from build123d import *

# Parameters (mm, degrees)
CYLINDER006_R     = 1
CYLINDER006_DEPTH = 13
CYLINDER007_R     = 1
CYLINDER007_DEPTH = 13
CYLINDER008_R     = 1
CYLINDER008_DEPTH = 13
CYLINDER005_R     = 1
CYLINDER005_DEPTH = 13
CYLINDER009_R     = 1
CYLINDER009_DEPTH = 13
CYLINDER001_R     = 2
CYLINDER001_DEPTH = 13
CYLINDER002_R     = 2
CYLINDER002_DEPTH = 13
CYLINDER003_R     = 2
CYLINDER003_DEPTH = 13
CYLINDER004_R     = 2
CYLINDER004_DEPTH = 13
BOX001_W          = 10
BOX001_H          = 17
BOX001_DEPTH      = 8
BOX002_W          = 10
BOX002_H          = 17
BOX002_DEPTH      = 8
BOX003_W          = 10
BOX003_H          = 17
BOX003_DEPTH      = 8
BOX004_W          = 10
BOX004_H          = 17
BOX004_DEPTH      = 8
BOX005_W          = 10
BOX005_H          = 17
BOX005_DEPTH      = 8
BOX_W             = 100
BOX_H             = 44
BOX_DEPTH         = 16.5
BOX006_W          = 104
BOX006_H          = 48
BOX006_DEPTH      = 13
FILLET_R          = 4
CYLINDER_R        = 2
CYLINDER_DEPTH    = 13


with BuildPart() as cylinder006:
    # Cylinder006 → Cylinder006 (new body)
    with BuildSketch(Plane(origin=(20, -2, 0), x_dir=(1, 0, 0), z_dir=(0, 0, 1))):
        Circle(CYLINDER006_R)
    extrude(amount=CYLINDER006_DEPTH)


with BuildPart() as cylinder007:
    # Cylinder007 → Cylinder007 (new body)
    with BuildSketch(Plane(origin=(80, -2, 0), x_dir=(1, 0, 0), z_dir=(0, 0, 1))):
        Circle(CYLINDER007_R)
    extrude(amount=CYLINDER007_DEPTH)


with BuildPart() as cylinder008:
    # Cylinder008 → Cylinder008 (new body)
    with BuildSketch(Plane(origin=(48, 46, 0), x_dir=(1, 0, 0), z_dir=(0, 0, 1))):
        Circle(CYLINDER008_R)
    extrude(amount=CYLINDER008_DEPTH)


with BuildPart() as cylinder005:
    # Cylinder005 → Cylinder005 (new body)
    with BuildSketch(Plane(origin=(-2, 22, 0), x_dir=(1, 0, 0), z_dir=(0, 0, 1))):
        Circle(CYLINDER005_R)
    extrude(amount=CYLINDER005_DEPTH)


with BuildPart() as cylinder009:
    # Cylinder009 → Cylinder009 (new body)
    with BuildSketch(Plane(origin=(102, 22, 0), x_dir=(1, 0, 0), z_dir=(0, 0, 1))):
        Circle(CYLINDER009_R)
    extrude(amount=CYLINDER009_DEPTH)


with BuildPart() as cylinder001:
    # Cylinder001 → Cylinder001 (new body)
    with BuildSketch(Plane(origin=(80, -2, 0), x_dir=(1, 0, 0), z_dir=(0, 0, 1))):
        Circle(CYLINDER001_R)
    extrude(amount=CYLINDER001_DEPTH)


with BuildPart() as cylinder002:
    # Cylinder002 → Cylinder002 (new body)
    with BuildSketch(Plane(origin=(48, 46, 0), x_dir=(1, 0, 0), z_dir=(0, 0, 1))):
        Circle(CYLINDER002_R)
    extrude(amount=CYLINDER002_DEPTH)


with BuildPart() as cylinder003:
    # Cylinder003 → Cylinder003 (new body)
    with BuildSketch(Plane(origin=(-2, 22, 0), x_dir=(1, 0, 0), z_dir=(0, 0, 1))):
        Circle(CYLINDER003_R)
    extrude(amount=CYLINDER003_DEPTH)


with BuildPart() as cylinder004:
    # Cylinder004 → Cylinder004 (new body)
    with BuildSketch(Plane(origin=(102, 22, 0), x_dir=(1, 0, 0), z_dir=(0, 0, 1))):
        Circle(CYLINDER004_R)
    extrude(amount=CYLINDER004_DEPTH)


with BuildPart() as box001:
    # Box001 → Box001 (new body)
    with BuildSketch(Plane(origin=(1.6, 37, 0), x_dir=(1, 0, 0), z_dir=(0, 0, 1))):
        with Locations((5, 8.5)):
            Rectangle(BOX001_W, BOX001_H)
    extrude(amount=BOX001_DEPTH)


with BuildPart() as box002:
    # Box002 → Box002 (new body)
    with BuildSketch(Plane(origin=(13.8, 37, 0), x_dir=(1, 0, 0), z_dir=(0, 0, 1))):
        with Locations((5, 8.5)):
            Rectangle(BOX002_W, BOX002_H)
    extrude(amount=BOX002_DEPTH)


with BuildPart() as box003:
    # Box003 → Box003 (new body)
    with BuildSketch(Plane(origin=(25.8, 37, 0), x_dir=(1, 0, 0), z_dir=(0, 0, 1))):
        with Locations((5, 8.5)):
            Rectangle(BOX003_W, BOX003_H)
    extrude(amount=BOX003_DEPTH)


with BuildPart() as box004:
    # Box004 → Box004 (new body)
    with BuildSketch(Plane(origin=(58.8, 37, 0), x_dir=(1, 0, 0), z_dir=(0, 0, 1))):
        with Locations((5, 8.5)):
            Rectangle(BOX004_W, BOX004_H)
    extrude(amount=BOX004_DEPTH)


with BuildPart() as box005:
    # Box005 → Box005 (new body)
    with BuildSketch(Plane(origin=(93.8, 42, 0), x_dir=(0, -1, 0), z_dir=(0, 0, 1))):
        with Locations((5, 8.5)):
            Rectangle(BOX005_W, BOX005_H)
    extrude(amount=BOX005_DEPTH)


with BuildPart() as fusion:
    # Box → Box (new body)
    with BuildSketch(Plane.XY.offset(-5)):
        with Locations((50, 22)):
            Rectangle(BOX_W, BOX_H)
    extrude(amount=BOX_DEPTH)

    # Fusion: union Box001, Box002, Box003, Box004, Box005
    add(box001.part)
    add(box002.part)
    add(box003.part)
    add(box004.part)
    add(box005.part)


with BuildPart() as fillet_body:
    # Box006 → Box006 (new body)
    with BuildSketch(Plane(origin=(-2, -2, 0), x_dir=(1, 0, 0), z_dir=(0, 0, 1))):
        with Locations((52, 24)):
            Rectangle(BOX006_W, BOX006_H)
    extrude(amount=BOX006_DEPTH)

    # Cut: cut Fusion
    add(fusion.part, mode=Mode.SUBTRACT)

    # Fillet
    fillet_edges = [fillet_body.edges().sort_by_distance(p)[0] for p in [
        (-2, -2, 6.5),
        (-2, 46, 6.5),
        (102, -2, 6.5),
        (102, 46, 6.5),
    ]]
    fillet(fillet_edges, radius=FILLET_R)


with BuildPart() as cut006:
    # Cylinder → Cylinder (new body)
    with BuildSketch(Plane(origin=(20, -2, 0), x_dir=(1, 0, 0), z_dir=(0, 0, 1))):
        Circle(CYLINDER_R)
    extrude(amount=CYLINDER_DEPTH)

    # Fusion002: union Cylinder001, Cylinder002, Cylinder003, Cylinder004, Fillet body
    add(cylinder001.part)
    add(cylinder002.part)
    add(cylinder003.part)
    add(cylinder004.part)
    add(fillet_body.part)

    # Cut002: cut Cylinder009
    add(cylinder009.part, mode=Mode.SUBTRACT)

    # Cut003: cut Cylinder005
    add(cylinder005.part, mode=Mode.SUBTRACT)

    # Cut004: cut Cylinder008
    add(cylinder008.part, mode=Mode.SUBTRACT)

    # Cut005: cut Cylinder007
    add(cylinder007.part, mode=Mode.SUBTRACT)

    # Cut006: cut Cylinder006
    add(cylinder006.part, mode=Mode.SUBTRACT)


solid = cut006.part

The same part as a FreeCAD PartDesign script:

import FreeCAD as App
import Part
import Sketcher
Q = App.Units.Quantity


def edges_at(feature, points):
    """Names of the edges that pass closest to the given points."""
    edges = feature.Shape.Edges
    near = lambda p: min(range(len(edges)), key=lambda i: edges[i].distToShape(Part.Vertex(*p))[0])
    return sorted({f"Edge{near(p) + 1}" for p in points})

doc = App.newDocument("Part")
params = doc.addObject("Spreadsheet::Sheet", "Params")
for row, (alias, value) in enumerate([
    ("sketch1_diameter", "2 mm"),
    ("pad1_length", "13 mm"),
    ("sketch2_diameter", "2 mm"),
    ("pad2_length", "13 mm"),
    ("sketch3_diameter", "2 mm"),
    ("pad3_length", "13 mm"),
    ("sketch4_diameter", "2 mm"),
    ("pad4_length", "13 mm"),
    ("sketch5_diameter", "2 mm"),
    ("pad5_length", "13 mm"),
    ("sketch6_diameter", "4 mm"),
    ("pad6_length", "13 mm"),
    ("sketch7_diameter", "4 mm"),
    ("pad7_length", "13 mm"),
    ("sketch8_diameter", "4 mm"),
    ("pad8_length", "13 mm"),
    ("sketch9_diameter", "4 mm"),
    ("pad9_length", "13 mm"),
    ("sketch10_width", "10 mm"),
    ("sketch10_height", "17 mm"),
    ("pad10_length", "8 mm"),
    ("sketch11_width", "10 mm"),
    ("sketch11_height", "17 mm"),
    ("pad11_length", "8 mm"),
    ("sketch12_width", "10 mm"),
    ("sketch12_height", "17 mm"),
    ("pad12_length", "8 mm"),
    ("sketch13_width", "10 mm"),
    ("sketch13_height", "17 mm"),
    ("pad13_length", "8 mm"),
    ("sketch14_width", "17 mm"),
    ("sketch14_height", "10 mm"),
    ("pad14_length", "8 mm"),
    ("sketch15_width", "100 mm"),
    ("sketch15_height", "44 mm"),
    ("pad15_length", "16.5 mm"),
    ("sketch16_width", "104 mm"),
    ("sketch16_height", "48 mm"),
    ("pad16_length", "13 mm"),
    ("fillet_radius", "4 mm"),
    ("sketch17_diameter", "4 mm"),
    ("pad17_length", "13 mm"),
], start=1):
    params.set(f"A{row}", alias)
    params.set(f"B{row}", "=" + value)
    params.setAlias(f"B{row}", alias)

body = doc.addObject("PartDesign::Body", "Body")

# Sketch on XY plane
sketch1 = body.newObject("Sketcher::SketchObject", "Sketch")
sketch1.AttachmentSupport = (doc.getObject("XY_Plane"), [""])
sketch1.MapMode = "FlatFace"
sketch1.addGeometry(Part.Circle(App.Vector(20, -2, 0), App.Vector(0, 0, 1), 1), False)
sketch1.addConstraint(Sketcher.Constraint("Diameter", 0, Q("2 mm")))
sketch1.addConstraint(Sketcher.Constraint("DistanceX", -1, 1, 0, 3, Q("20 mm")))
sketch1.addConstraint(Sketcher.Constraint("DistanceY", 0, 3, -1, 1, Q("2 mm")))
sketch1.setExpression("Constraints[0]", "Params.sketch1_diameter")
pad1 = body.newObject("PartDesign::Pad", "Pad")
pad1.Profile = sketch1
pad1.setExpression("Length", "Params.pad1_length")
body2 = doc.addObject("PartDesign::Body", "Body001")

# Sketch on XY plane
sketch2 = body2.newObject("Sketcher::SketchObject", "Sketch001")
sketch2.AttachmentSupport = (doc.getObject("XY_Plane001"), [""])
sketch2.MapMode = "FlatFace"
sketch2.addGeometry(Part.Circle(App.Vector(80, -2, 0), App.Vector(0, 0, 1), 1), False)
sketch2.addConstraint(Sketcher.Constraint("Diameter", 0, Q("2 mm")))
sketch2.addConstraint(Sketcher.Constraint("DistanceX", -1, 1, 0, 3, Q("80 mm")))
sketch2.addConstraint(Sketcher.Constraint("DistanceY", 0, 3, -1, 1, Q("2 mm")))
sketch2.setExpression("Constraints[0]", "Params.sketch2_diameter")
pad2 = body2.newObject("PartDesign::Pad", "Pad001")
pad2.Profile = sketch2
pad2.setExpression("Length", "Params.pad2_length")
body3 = doc.addObject("PartDesign::Body", "Body002")

# Sketch on XY plane
sketch3 = body3.newObject("Sketcher::SketchObject", "Sketch002")
sketch3.AttachmentSupport = (doc.getObject("XY_Plane002"), [""])
sketch3.MapMode = "FlatFace"
sketch3.addGeometry(Part.Circle(App.Vector(48, 46, 0), App.Vector(0, 0, 1), 1), False)
sketch3.addConstraint(Sketcher.Constraint("Diameter", 0, Q("2 mm")))
sketch3.addConstraint(Sketcher.Constraint("DistanceX", -1, 1, 0, 3, Q("48 mm")))
sketch3.addConstraint(Sketcher.Constraint("DistanceY", -1, 1, 0, 3, Q("46 mm")))
sketch3.setExpression("Constraints[0]", "Params.sketch3_diameter")
pad3 = body3.newObject("PartDesign::Pad", "Pad002")
pad3.Profile = sketch3
pad3.setExpression("Length", "Params.pad3_length")
body4 = doc.addObject("PartDesign::Body", "Body003")

# Sketch on XY plane
sketch4 = body4.newObject("Sketcher::SketchObject", "Sketch003")
sketch4.AttachmentSupport = (doc.getObject("XY_Plane003"), [""])
sketch4.MapMode = "FlatFace"
sketch4.addGeometry(Part.Circle(App.Vector(-2, 22, 0), App.Vector(0, 0, 1), 1), False)
sketch4.addConstraint(Sketcher.Constraint("Diameter", 0, Q("2 mm")))
sketch4.addConstraint(Sketcher.Constraint("DistanceX", 0, 3, -1, 1, Q("2 mm")))
sketch4.addConstraint(Sketcher.Constraint("DistanceY", -1, 1, 0, 3, Q("22 mm")))
sketch4.setExpression("Constraints[0]", "Params.sketch4_diameter")
pad4 = body4.newObject("PartDesign::Pad", "Pad003")
pad4.Profile = sketch4
pad4.setExpression("Length", "Params.pad4_length")
body5 = doc.addObject("PartDesign::Body", "Body004")

# Sketch on XY plane
sketch5 = body5.newObject("Sketcher::SketchObject", "Sketch004")
sketch5.AttachmentSupport = (doc.getObject("XY_Plane004"), [""])
sketch5.MapMode = "FlatFace"
sketch5.addGeometry(Part.Circle(App.Vector(102, 22, 0), App.Vector(0, 0, 1), 1), False)
sketch5.addConstraint(Sketcher.Constraint("Diameter", 0, Q("2 mm")))
sketch5.addConstraint(Sketcher.Constraint("DistanceX", -1, 1, 0, 3, Q("102 mm")))
sketch5.addConstraint(Sketcher.Constraint("DistanceY", -1, 1, 0, 3, Q("22 mm")))
sketch5.setExpression("Constraints[0]", "Params.sketch5_diameter")
pad5 = body5.newObject("PartDesign::Pad", "Pad004")
pad5.Profile = sketch5
pad5.setExpression("Length", "Params.pad5_length")
body6 = doc.addObject("PartDesign::Body", "Body005")

# Sketch on XY plane
sketch6 = body6.newObject("Sketcher::SketchObject", "Sketch005")
sketch6.AttachmentSupport = (doc.getObject("XY_Plane005"), [""])
sketch6.MapMode = "FlatFace"
sketch6.addGeometry(Part.Circle(App.Vector(80, -2, 0), App.Vector(0, 0, 1), 2), False)
sketch6.addConstraint(Sketcher.Constraint("Diameter", 0, Q("4 mm")))
sketch6.addConstraint(Sketcher.Constraint("DistanceX", -1, 1, 0, 3, Q("80 mm")))
sketch6.addConstraint(Sketcher.Constraint("DistanceY", 0, 3, -1, 1, Q("2 mm")))
sketch6.setExpression("Constraints[0]", "Params.sketch6_diameter")
pad6 = body6.newObject("PartDesign::Pad", "Pad005")
pad6.Profile = sketch6
pad6.setExpression("Length", "Params.pad6_length")
body7 = doc.addObject("PartDesign::Body", "Body006")

# Sketch on XY plane
sketch7 = body7.newObject("Sketcher::SketchObject", "Sketch006")
sketch7.AttachmentSupport = (doc.getObject("XY_Plane006"), [""])
sketch7.MapMode = "FlatFace"
sketch7.addGeometry(Part.Circle(App.Vector(48, 46, 0), App.Vector(0, 0, 1), 2), False)
sketch7.addConstraint(Sketcher.Constraint("Diameter", 0, Q("4 mm")))
sketch7.addConstraint(Sketcher.Constraint("DistanceX", -1, 1, 0, 3, Q("48 mm")))
sketch7.addConstraint(Sketcher.Constraint("DistanceY", -1, 1, 0, 3, Q("46 mm")))
sketch7.setExpression("Constraints[0]", "Params.sketch7_diameter")
pad7 = body7.newObject("PartDesign::Pad", "Pad006")
pad7.Profile = sketch7
pad7.setExpression("Length", "Params.pad7_length")
body8 = doc.addObject("PartDesign::Body", "Body007")

# Sketch on XY plane
sketch8 = body8.newObject("Sketcher::SketchObject", "Sketch007")
sketch8.AttachmentSupport = (doc.getObject("XY_Plane007"), [""])
sketch8.MapMode = "FlatFace"
sketch8.addGeometry(Part.Circle(App.Vector(-2, 22, 0), App.Vector(0, 0, 1), 2), False)
sketch8.addConstraint(Sketcher.Constraint("Diameter", 0, Q("4 mm")))
sketch8.addConstraint(Sketcher.Constraint("DistanceX", 0, 3, -1, 1, Q("2 mm")))
sketch8.addConstraint(Sketcher.Constraint("DistanceY", -1, 1, 0, 3, Q("22 mm")))
sketch8.setExpression("Constraints[0]", "Params.sketch8_diameter")
pad8 = body8.newObject("PartDesign::Pad", "Pad007")
pad8.Profile = sketch8
pad8.setExpression("Length", "Params.pad8_length")
body9 = doc.addObject("PartDesign::Body", "Body008")

# Sketch on XY plane
sketch9 = body9.newObject("Sketcher::SketchObject", "Sketch008")
sketch9.AttachmentSupport = (doc.getObject("XY_Plane008"), [""])
sketch9.MapMode = "FlatFace"
sketch9.addGeometry(Part.Circle(App.Vector(102, 22, 0), App.Vector(0, 0, 1), 2), False)
sketch9.addConstraint(Sketcher.Constraint("Diameter", 0, Q("4 mm")))
sketch9.addConstraint(Sketcher.Constraint("DistanceX", -1, 1, 0, 3, Q("102 mm")))
sketch9.addConstraint(Sketcher.Constraint("DistanceY", -1, 1, 0, 3, Q("22 mm")))
sketch9.setExpression("Constraints[0]", "Params.sketch9_diameter")
pad9 = body9.newObject("PartDesign::Pad", "Pad008")
pad9.Profile = sketch9
pad9.setExpression("Length", "Params.pad9_length")
body10 = doc.addObject("PartDesign::Body", "Body009")

# Sketch on XY plane
sketch10 = body10.newObject("Sketcher::SketchObject", "Sketch009")
sketch10.AttachmentSupport = (doc.getObject("XY_Plane009"), [""])
sketch10.MapMode = "FlatFace"
sketch10.addGeometry(Part.LineSegment(App.Vector(2, 54, 0), App.Vector(2, 37, 0)), False)
sketch10.addGeometry(Part.LineSegment(App.Vector(2, 37, 0), App.Vector(12, 37, 0)), False)
sketch10.addGeometry(Part.LineSegment(App.Vector(12, 37, 0), App.Vector(12, 54, 0)), False)
sketch10.addGeometry(Part.LineSegment(App.Vector(12, 54, 0), App.Vector(2, 54, 0)), False)
sketch10.addConstraint(Sketcher.Constraint("Coincident", 0, 2, 1, 1))
sketch10.addConstraint(Sketcher.Constraint("Coincident", 1, 2, 2, 1))
sketch10.addConstraint(Sketcher.Constraint("Coincident", 2, 2, 3, 1))
sketch10.addConstraint(Sketcher.Constraint("Coincident", 3, 2, 0, 1))
sketch10.addConstraint(Sketcher.Constraint("Vertical", 0))
sketch10.addConstraint(Sketcher.Constraint("Horizontal", 1))
sketch10.addConstraint(Sketcher.Constraint("Vertical", 2))
sketch10.addConstraint(Sketcher.Constraint("Horizontal", 3))
sketch10.addConstraint(Sketcher.Constraint("DistanceX", 1, 1, 1, 2, Q("10 mm")))
sketch10.addConstraint(Sketcher.Constraint("DistanceY", 0, 2, 0, 1, Q("17 mm")))
sketch10.addConstraint(Sketcher.Constraint("DistanceY", -1, 1, 0, 2, Q("37 mm")))
sketch10.addConstraint(Sketcher.Constraint("DistanceX", -1, 1, 0, 2, Q("1.6 mm")))
sketch10.setExpression("Constraints[8]", "Params.sketch10_width")
sketch10.setExpression("Constraints[9]", "Params.sketch10_height")
pad10 = body10.newObject("PartDesign::Pad", "Pad009")
pad10.Profile = sketch10
pad10.setExpression("Length", "Params.pad10_length")
body11 = doc.addObject("PartDesign::Body", "Body010")

# Sketch on XY plane
sketch11 = body11.newObject("Sketcher::SketchObject", "Sketch010")
sketch11.AttachmentSupport = (doc.getObject("XY_Plane010"), [""])
sketch11.MapMode = "FlatFace"
sketch11.addGeometry(Part.LineSegment(App.Vector(14, 54, 0), App.Vector(14, 37, 0)), False)
sketch11.addGeometry(Part.LineSegment(App.Vector(14, 37, 0), App.Vector(24, 37, 0)), False)
sketch11.addGeometry(Part.LineSegment(App.Vector(24, 37, 0), App.Vector(24, 54, 0)), False)
sketch11.addGeometry(Part.LineSegment(App.Vector(24, 54, 0), App.Vector(14, 54, 0)), False)
sketch11.addConstraint(Sketcher.Constraint("Coincident", 0, 2, 1, 1))
sketch11.addConstraint(Sketcher.Constraint("Coincident", 1, 2, 2, 1))
sketch11.addConstraint(Sketcher.Constraint("Coincident", 2, 2, 3, 1))
sketch11.addConstraint(Sketcher.Constraint("Coincident", 3, 2, 0, 1))
sketch11.addConstraint(Sketcher.Constraint("Vertical", 0))
sketch11.addConstraint(Sketcher.Constraint("Horizontal", 1))
sketch11.addConstraint(Sketcher.Constraint("Vertical", 2))
sketch11.addConstraint(Sketcher.Constraint("Horizontal", 3))
sketch11.addConstraint(Sketcher.Constraint("DistanceX", 1, 1, 1, 2, Q("10 mm")))
sketch11.addConstraint(Sketcher.Constraint("DistanceY", 0, 2, 0, 1, Q("17 mm")))
sketch11.addConstraint(Sketcher.Constraint("DistanceY", -1, 1, 0, 2, Q("37 mm")))
sketch11.addConstraint(Sketcher.Constraint("DistanceX", -1, 1, 0, 2, Q("13.8 mm")))
sketch11.setExpression("Constraints[8]", "Params.sketch11_width")
sketch11.setExpression("Constraints[9]", "Params.sketch11_height")
pad11 = body11.newObject("PartDesign::Pad", "Pad010")
pad11.Profile = sketch11
pad11.setExpression("Length", "Params.pad11_length")
body12 = doc.addObject("PartDesign::Body", "Body011")

# Sketch on XY plane
sketch12 = body12.newObject("Sketcher::SketchObject", "Sketch011")
sketch12.AttachmentSupport = (doc.getObject("XY_Plane011"), [""])
sketch12.MapMode = "FlatFace"
sketch12.addGeometry(Part.LineSegment(App.Vector(26, 54, 0), App.Vector(26, 37, 0)), False)
sketch12.addGeometry(Part.LineSegment(App.Vector(26, 37, 0), App.Vector(36, 37, 0)), False)
sketch12.addGeometry(Part.LineSegment(App.Vector(36, 37, 0), App.Vector(36, 54, 0)), False)
sketch12.addGeometry(Part.LineSegment(App.Vector(36, 54, 0), App.Vector(26, 54, 0)), False)
sketch12.addConstraint(Sketcher.Constraint("Coincident", 0, 2, 1, 1))
sketch12.addConstraint(Sketcher.Constraint("Coincident", 1, 2, 2, 1))
sketch12.addConstraint(Sketcher.Constraint("Coincident", 2, 2, 3, 1))
sketch12.addConstraint(Sketcher.Constraint("Coincident", 3, 2, 0, 1))
sketch12.addConstraint(Sketcher.Constraint("Vertical", 0))
sketch12.addConstraint(Sketcher.Constraint("Horizontal", 1))
sketch12.addConstraint(Sketcher.Constraint("Vertical", 2))
sketch12.addConstraint(Sketcher.Constraint("Horizontal", 3))
sketch12.addConstraint(Sketcher.Constraint("DistanceX", 1, 1, 1, 2, Q("10 mm")))
sketch12.addConstraint(Sketcher.Constraint("DistanceY", 0, 2, 0, 1, Q("17 mm")))
sketch12.addConstraint(Sketcher.Constraint("DistanceY", -1, 1, 0, 2, Q("37 mm")))
sketch12.addConstraint(Sketcher.Constraint("DistanceX", -1, 1, 0, 2, Q("25.8 mm")))
sketch12.setExpression("Constraints[8]", "Params.sketch12_width")
sketch12.setExpression("Constraints[9]", "Params.sketch12_height")
pad12 = body12.newObject("PartDesign::Pad", "Pad011")
pad12.Profile = sketch12
pad12.setExpression("Length", "Params.pad12_length")
body13 = doc.addObject("PartDesign::Body", "Body012")

# Sketch on XY plane
sketch13 = body13.newObject("Sketcher::SketchObject", "Sketch012")
sketch13.AttachmentSupport = (doc.getObject("XY_Plane012"), [""])
sketch13.MapMode = "FlatFace"
sketch13.addGeometry(Part.LineSegment(App.Vector(59, 54, 0), App.Vector(59, 37, 0)), False)
sketch13.addGeometry(Part.LineSegment(App.Vector(59, 37, 0), App.Vector(69, 37, 0)), False)
sketch13.addGeometry(Part.LineSegment(App.Vector(69, 37, 0), App.Vector(69, 54, 0)), False)
sketch13.addGeometry(Part.LineSegment(App.Vector(69, 54, 0), App.Vector(59, 54, 0)), False)
sketch13.addConstraint(Sketcher.Constraint("Coincident", 0, 2, 1, 1))
sketch13.addConstraint(Sketcher.Constraint("Coincident", 1, 2, 2, 1))
sketch13.addConstraint(Sketcher.Constraint("Coincident", 2, 2, 3, 1))
sketch13.addConstraint(Sketcher.Constraint("Coincident", 3, 2, 0, 1))
sketch13.addConstraint(Sketcher.Constraint("Vertical", 0))
sketch13.addConstraint(Sketcher.Constraint("Horizontal", 1))
sketch13.addConstraint(Sketcher.Constraint("Vertical", 2))
sketch13.addConstraint(Sketcher.Constraint("Horizontal", 3))
sketch13.addConstraint(Sketcher.Constraint("DistanceX", 1, 1, 1, 2, Q("10 mm")))
sketch13.addConstraint(Sketcher.Constraint("DistanceY", 0, 2, 0, 1, Q("17 mm")))
sketch13.addConstraint(Sketcher.Constraint("DistanceY", -1, 1, 0, 2, Q("37 mm")))
sketch13.addConstraint(Sketcher.Constraint("DistanceX", -1, 1, 0, 2, Q("58.8 mm")))
sketch13.setExpression("Constraints[8]", "Params.sketch13_width")
sketch13.setExpression("Constraints[9]", "Params.sketch13_height")
pad13 = body13.newObject("PartDesign::Pad", "Pad012")
pad13.Profile = sketch13
pad13.setExpression("Length", "Params.pad13_length")
body14 = doc.addObject("PartDesign::Body", "Body013")

# Sketch on XY plane
sketch14 = body14.newObject("Sketcher::SketchObject", "Sketch013")
sketch14.AttachmentSupport = (doc.getObject("XY_Plane013"), [""])
sketch14.MapMode = "FlatFace"
sketch14.addGeometry(Part.LineSegment(App.Vector(111, 42, 0), App.Vector(94, 42, 0)), False)
sketch14.addGeometry(Part.LineSegment(App.Vector(94, 42, 0), App.Vector(94, 32, 0)), False)
sketch14.addGeometry(Part.LineSegment(App.Vector(94, 32, 0), App.Vector(111, 32, 0)), False)
sketch14.addGeometry(Part.LineSegment(App.Vector(111, 32, 0), App.Vector(111, 42, 0)), False)
sketch14.addConstraint(Sketcher.Constraint("Coincident", 0, 2, 1, 1))
sketch14.addConstraint(Sketcher.Constraint("Coincident", 1, 2, 2, 1))
sketch14.addConstraint(Sketcher.Constraint("Coincident", 2, 2, 3, 1))
sketch14.addConstraint(Sketcher.Constraint("Coincident", 3, 2, 0, 1))
sketch14.addConstraint(Sketcher.Constraint("Horizontal", 0))
sketch14.addConstraint(Sketcher.Constraint("Vertical", 1))
sketch14.addConstraint(Sketcher.Constraint("Horizontal", 2))
sketch14.addConstraint(Sketcher.Constraint("Vertical", 3))
sketch14.addConstraint(Sketcher.Constraint("DistanceX", 0, 2, 0, 1, Q("17 mm")))
sketch14.addConstraint(Sketcher.Constraint("DistanceY", 1, 2, 1, 1, Q("10 mm")))
sketch14.addConstraint(Sketcher.Constraint("DistanceY", -1, 1, 0, 2, Q("42 mm")))
sketch14.addConstraint(Sketcher.Constraint("DistanceX", -1, 1, 0, 2, Q("93.8 mm")))
sketch14.setExpression("Constraints[8]", "Params.sketch14_width")
sketch14.setExpression("Constraints[9]", "Params.sketch14_height")
pad14 = body14.newObject("PartDesign::Pad", "Pad013")
pad14.Profile = sketch14
pad14.setExpression("Length", "Params.pad14_length")
body15 = doc.addObject("PartDesign::Body", "Body014")

# Sketch on XY plane
sketch15 = body15.newObject("Sketcher::SketchObject", "Sketch014")
sketch15.AttachmentSupport = (doc.getObject("XY_Plane014"), [""])
sketch15.MapMode = "FlatFace"
sketch15.AttachmentOffset = App.Placement(App.Vector(0, 0, -5), App.Rotation())
sketch15.addGeometry(Part.LineSegment(App.Vector(0, 44, 0), App.Vector(0, 0, 0)), False)
sketch15.addGeometry(Part.LineSegment(App.Vector(0, 0, 0), App.Vector(100, 0, 0)), False)
sketch15.addGeometry(Part.LineSegment(App.Vector(100, 0, 0), App.Vector(100, 44, 0)), False)
sketch15.addGeometry(Part.LineSegment(App.Vector(100, 44, 0), App.Vector(0, 44, 0)), False)
sketch15.addConstraint(Sketcher.Constraint("Coincident", 0, 2, 1, 1))
sketch15.addConstraint(Sketcher.Constraint("Coincident", 1, 2, 2, 1))
sketch15.addConstraint(Sketcher.Constraint("Coincident", 2, 2, 3, 1))
sketch15.addConstraint(Sketcher.Constraint("Coincident", 3, 2, 0, 1))
sketch15.addConstraint(Sketcher.Constraint("Vertical", 0))
sketch15.addConstraint(Sketcher.Constraint("Horizontal", 1))
sketch15.addConstraint(Sketcher.Constraint("Vertical", 2))
sketch15.addConstraint(Sketcher.Constraint("Horizontal", 3))
sketch15.addConstraint(Sketcher.Constraint("Coincident", 0, 2, -1, 1))
sketch15.addConstraint(Sketcher.Constraint("DistanceX", 1, 1, 1, 2, Q("100 mm")))
sketch15.addConstraint(Sketcher.Constraint("DistanceY", 0, 2, 0, 1, Q("44 mm")))
sketch15.setExpression("Constraints[9]", "Params.sketch15_width")
sketch15.setExpression("Constraints[10]", "Params.sketch15_height")
pad15 = body15.newObject("PartDesign::Pad", "Pad014")
pad15.Profile = sketch15
pad15.setExpression("Length", "Params.pad15_length")
doc.recompute()

boolean = body15.newObject("PartDesign::Boolean", "Boolean")
boolean.Type = "Fuse"
boolean.addObjects([body10])
doc.recompute()

boolean2 = body15.newObject("PartDesign::Boolean", "Boolean001")
boolean2.Type = "Fuse"
boolean2.addObjects([body11])
doc.recompute()

boolean3 = body15.newObject("PartDesign::Boolean", "Boolean002")
boolean3.Type = "Fuse"
boolean3.addObjects([body12])
doc.recompute()

boolean4 = body15.newObject("PartDesign::Boolean", "Boolean003")
boolean4.Type = "Fuse"
boolean4.addObjects([body13])
doc.recompute()

boolean5 = body15.newObject("PartDesign::Boolean", "Boolean004")
boolean5.Type = "Fuse"
boolean5.addObjects([body14])
body16 = doc.addObject("PartDesign::Body", "Body015")

# Sketch on XY plane
sketch16 = body16.newObject("Sketcher::SketchObject", "Sketch015")
sketch16.AttachmentSupport = (doc.getObject("XY_Plane015"), [""])
sketch16.MapMode = "FlatFace"
sketch16.addGeometry(Part.LineSegment(App.Vector(-2, 46, 0), App.Vector(-2, -2, 0)), False)
sketch16.addGeometry(Part.LineSegment(App.Vector(-2, -2, 0), App.Vector(102, -2, 0)), False)
sketch16.addGeometry(Part.LineSegment(App.Vector(102, -2, 0), App.Vector(102, 46, 0)), False)
sketch16.addGeometry(Part.LineSegment(App.Vector(102, 46, 0), App.Vector(-2, 46, 0)), False)
sketch16.addConstraint(Sketcher.Constraint("Coincident", 0, 2, 1, 1))
sketch16.addConstraint(Sketcher.Constraint("Coincident", 1, 2, 2, 1))
sketch16.addConstraint(Sketcher.Constraint("Coincident", 2, 2, 3, 1))
sketch16.addConstraint(Sketcher.Constraint("Coincident", 3, 2, 0, 1))
sketch16.addConstraint(Sketcher.Constraint("Vertical", 0))
sketch16.addConstraint(Sketcher.Constraint("Horizontal", 1))
sketch16.addConstraint(Sketcher.Constraint("Vertical", 2))
sketch16.addConstraint(Sketcher.Constraint("Horizontal", 3))
sketch16.addConstraint(Sketcher.Constraint("DistanceX", 1, 1, 1, 2, Q("104 mm")))
sketch16.addConstraint(Sketcher.Constraint("DistanceY", 0, 2, 0, 1, Q("48 mm")))
sketch16.addConstraint(Sketcher.Constraint("DistanceX", 0, 2, -1, 1, Q("2 mm")))
sketch16.addConstraint(Sketcher.Constraint("DistanceY", 0, 2, -1, 1, Q("2 mm")))
sketch16.setExpression("Constraints[8]", "Params.sketch16_width")
sketch16.setExpression("Constraints[9]", "Params.sketch16_height")
pad16 = body16.newObject("PartDesign::Pad", "Pad015")
pad16.Profile = sketch16
pad16.setExpression("Length", "Params.pad16_length")
doc.recompute()

boolean6 = body16.newObject("PartDesign::Boolean", "Boolean005")
boolean6.Type = "Cut"
boolean6.addObjects([body15])
doc.recompute()

fillet = body16.newObject("PartDesign::Fillet", "Fillet")
fillet.Base = (boolean6, edges_at(boolean6, [
    (-2, -2, 6.5),
    (-2, 46, 6.5),
    (102, -2, 6.5),
    (102, 46, 6.5),
]))
fillet.setExpression("Radius", "Params.fillet_radius")
body17 = doc.addObject("PartDesign::Body", "Body016")
body17.AllowCompound = True

# Sketch on XY plane
sketch17 = body17.newObject("Sketcher::SketchObject", "Sketch016")
sketch17.AttachmentSupport = (doc.getObject("XY_Plane016"), [""])
sketch17.MapMode = "FlatFace"
sketch17.addGeometry(Part.Circle(App.Vector(20, -2, 0), App.Vector(0, 0, 1), 2), False)
sketch17.addConstraint(Sketcher.Constraint("Diameter", 0, Q("4 mm")))
sketch17.addConstraint(Sketcher.Constraint("DistanceX", -1, 1, 0, 3, Q("20 mm")))
sketch17.addConstraint(Sketcher.Constraint("DistanceY", 0, 3, -1, 1, Q("2 mm")))
sketch17.setExpression("Constraints[0]", "Params.sketch17_diameter")
pad17 = body17.newObject("PartDesign::Pad", "Pad016")
pad17.Profile = sketch17
pad17.setExpression("Length", "Params.pad17_length")
doc.recompute()

boolean7 = body17.newObject("PartDesign::Boolean", "Boolean006")
boolean7.Type = "Fuse"
boolean7.addObjects([body6])
doc.recompute()

boolean8 = body17.newObject("PartDesign::Boolean", "Boolean007")
boolean8.Type = "Fuse"
boolean8.addObjects([body7])
doc.recompute()

boolean9 = body17.newObject("PartDesign::Boolean", "Boolean008")
boolean9.Type = "Fuse"
boolean9.addObjects([body8])
doc.recompute()

boolean10 = body17.newObject("PartDesign::Boolean", "Boolean009")
boolean10.Type = "Fuse"
boolean10.addObjects([body9])
doc.recompute()

boolean11 = body17.newObject("PartDesign::Boolean", "Boolean010")
boolean11.Type = "Fuse"
boolean11.addObjects([body16])
doc.recompute()

boolean12 = body17.newObject("PartDesign::Boolean", "Boolean011")
boolean12.Type = "Cut"
boolean12.addObjects([body5])
doc.recompute()

boolean13 = body17.newObject("PartDesign::Boolean", "Boolean012")
boolean13.Type = "Cut"
boolean13.addObjects([body4])
doc.recompute()

boolean14 = body17.newObject("PartDesign::Boolean", "Boolean013")
boolean14.Type = "Cut"
boolean14.addObjects([body3])
doc.recompute()

boolean15 = body17.newObject("PartDesign::Boolean", "Boolean014")
boolean15.Type = "Cut"
boolean15.addObjects([body2])
doc.recompute()

boolean16 = body17.newObject("PartDesign::Boolean", "Boolean015")
boolean16.Type = "Cut"
boolean16.addObjects([body])

doc.recompute()
